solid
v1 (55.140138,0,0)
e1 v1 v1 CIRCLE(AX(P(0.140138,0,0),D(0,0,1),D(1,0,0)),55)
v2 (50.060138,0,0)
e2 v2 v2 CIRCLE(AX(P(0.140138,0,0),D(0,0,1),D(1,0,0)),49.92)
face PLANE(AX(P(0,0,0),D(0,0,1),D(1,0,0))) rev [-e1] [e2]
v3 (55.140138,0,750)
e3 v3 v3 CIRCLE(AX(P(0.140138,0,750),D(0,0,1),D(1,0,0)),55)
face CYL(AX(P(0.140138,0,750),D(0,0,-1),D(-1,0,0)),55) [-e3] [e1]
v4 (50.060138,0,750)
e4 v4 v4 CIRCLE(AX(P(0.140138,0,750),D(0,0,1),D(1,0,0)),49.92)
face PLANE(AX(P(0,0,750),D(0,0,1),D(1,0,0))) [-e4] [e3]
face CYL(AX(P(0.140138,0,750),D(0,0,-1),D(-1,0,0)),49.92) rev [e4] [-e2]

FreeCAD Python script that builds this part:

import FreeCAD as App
import Part
import Sketcher

V = App.Vector

doc = App.newDocument("Part")
body = doc.addObject("PartDesign::Body", "Body")

sketch1 = doc.addObject("Sketcher::SketchObject", "Sketch")
body.addObject(sketch1)
sketch1.AttachmentSupport = (doc.XY_Plane, [""])
sketch1.MapMode = "FlatFace"
sketch1.addGeometry([
    Part.Circle(V(0.140138, 0, 0), V(0, 0, 1), 55),
    Part.Circle(V(0.140138, 0, 0), V(0, 0, 1), 49.92),
], False)
sketch1.addConstraint([
    Sketcher.Constraint("Coincident", 1, 3, 0, 3),
    Sketcher.Constraint("PointOnObject", 0, 3, -1),
    Sketcher.Constraint("Diameter", 0, 110.0),
    Sketcher.Constraint("Diameter", 1, 99.84),
    Sketcher.Constraint("DistanceX", -1, 1, 0, 3, 0.140138),
])
pad1 = doc.addObject("PartDesign::Pad", "Pad")
body.addObject(pad1)
pad1.Profile = sketch1
pad1.Length = 750

doc.recompute()
